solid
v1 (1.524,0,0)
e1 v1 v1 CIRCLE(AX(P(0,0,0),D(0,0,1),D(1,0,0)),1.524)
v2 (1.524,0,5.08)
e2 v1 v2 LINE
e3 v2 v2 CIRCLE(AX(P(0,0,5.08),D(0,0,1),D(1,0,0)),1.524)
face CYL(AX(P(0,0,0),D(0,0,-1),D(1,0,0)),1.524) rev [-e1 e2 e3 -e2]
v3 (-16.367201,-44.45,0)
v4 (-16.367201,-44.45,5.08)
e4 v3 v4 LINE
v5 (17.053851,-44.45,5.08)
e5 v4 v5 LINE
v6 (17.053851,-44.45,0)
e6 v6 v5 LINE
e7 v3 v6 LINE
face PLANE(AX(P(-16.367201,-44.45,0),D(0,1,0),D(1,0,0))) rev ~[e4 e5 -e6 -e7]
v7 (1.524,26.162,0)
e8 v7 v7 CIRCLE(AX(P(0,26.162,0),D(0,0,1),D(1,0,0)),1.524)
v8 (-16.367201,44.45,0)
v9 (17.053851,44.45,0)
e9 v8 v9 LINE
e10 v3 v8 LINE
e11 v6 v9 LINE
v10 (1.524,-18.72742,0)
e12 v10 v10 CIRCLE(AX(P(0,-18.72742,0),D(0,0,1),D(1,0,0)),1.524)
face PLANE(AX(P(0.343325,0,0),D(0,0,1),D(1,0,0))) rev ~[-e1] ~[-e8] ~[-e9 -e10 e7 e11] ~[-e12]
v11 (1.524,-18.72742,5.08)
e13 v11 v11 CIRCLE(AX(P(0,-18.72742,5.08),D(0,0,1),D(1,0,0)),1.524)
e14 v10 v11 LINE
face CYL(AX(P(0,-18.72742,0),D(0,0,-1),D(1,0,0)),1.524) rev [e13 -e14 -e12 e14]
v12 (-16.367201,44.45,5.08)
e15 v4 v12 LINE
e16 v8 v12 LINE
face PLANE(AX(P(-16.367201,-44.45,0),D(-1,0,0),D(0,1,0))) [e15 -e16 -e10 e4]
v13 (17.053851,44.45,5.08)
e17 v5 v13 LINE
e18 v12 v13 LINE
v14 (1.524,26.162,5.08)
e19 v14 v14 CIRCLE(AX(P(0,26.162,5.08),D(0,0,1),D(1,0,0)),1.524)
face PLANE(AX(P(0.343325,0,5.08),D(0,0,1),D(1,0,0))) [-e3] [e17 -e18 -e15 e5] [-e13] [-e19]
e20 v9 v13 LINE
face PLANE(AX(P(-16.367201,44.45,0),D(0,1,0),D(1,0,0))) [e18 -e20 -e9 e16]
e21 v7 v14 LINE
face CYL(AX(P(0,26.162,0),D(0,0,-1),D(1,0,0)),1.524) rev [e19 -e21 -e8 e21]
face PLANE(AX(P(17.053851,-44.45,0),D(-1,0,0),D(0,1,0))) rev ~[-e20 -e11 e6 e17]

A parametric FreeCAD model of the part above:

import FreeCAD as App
import Part
import Sketcher

V = App.Vector
Q = App.Units.Quantity

doc = App.newDocument("Part")
params = doc.addObject("Spreadsheet::Sheet", "Params")
for row, (alias, value) in enumerate([
    ("sketch1_diameter", "0.12 in"),
    ("sketch1_height", "3.5 in"),
    ("pad1_length", "0.2 in"),
], start=1):
    params.set(f"A{row}", alias)
    params.set(f"B{row}", "=" + value)
    params.setAlias(f"B{row}", alias)

body = doc.addObject("PartDesign::Body", "Body")

# Sketch on XY plane
sketch1 = doc.addObject("Sketcher::SketchObject", "Sketch")
body.addObject(sketch1)
sketch1.AttachmentSupport = (doc.XY_Plane, [""])
sketch1.MapMode = "FlatFace"
sketch1.addGeometry([
    Part.LineSegment(V(-16.4, 44.5, 0), V(-16.4, -44.5, 0)),  # 0
    Part.LineSegment(V(-16.4, -44.5, 0), V(17.1, -44.5, 0)),  # 1
    Part.LineSegment(V(17.1, -44.5, 0), V(17.1, 44.5, 0)),  # 2
    Part.LineSegment(V(17.1, 44.5, 0), V(-16.4, 44.5, 0)),  # 3
    Part.Circle(V(0, -18.7, 0), V(0, 0, 1), 1.5),  # 4
    Part.Circle(V(0, 0, 0), V(0, 0, 1), 1.5),  # 5
    Part.Circle(V(0, 26.2, 0), V(0, 0, 1), 1.5),  # 6
], False)
sketch1.addConstraint([
    Sketcher.Constraint("Coincident", 0, 2, 1, 1),
    Sketcher.Constraint("Coincident", 1, 2, 2, 1),
    Sketcher.Constraint("Coincident", 2, 2, 3, 1),
    Sketcher.Constraint("Coincident", 3, 2, 0, 1),
    Sketcher.Constraint("Vertical", 0),
    Sketcher.Constraint("Horizontal", 1),
    Sketcher.Constraint("Vertical", 2),
    Sketcher.Constraint("Horizontal", 3),
    Sketcher.Constraint("Coincident", 5, 3, -1, 1),
    Sketcher.Constraint("Equal", 4, 5),
    Sketcher.Constraint("Equal", 5, 6),
    Sketcher.Constraint("PointOnObject", 4, 3, -2),
    Sketcher.Constraint("PointOnObject", 6, 3, -2),
    Sketcher.Constraint("Diameter", 4, Q("0.12 in")),
    Sketcher.Constraint("DistanceY", 0, 2, 0, 1, Q("3.5 in")),
    Sketcher.Constraint("DistanceY", -1, 1, 6, 3, Q("1.03 in")),
    Sketcher.Constraint("DistanceY", 0, 2, -1, 1, Q("1.75 in")),
    Sketcher.Constraint("DistanceY", 4, 3, -1, 1, Q("0.7373 in")),
    Sketcher.Constraint("DistanceX", 0, 2, -1, 1, Q("16.367201 mm")),
    Sketcher.Constraint("DistanceX", 1, 1, 1, 2, Q("33.421052 mm")),
])
sketch1.setExpression("Constraints[13]", "Params.sketch1_diameter")
sketch1.setExpression("Constraints[14]", "Params.sketch1_height")
pad1 = doc.addObject("PartDesign::Pad", "Pad")
body.addObject(pad1)
pad1.Profile = sketch1
pad1.setExpression("Length", "Params.pad1_length")

doc.recompute()
